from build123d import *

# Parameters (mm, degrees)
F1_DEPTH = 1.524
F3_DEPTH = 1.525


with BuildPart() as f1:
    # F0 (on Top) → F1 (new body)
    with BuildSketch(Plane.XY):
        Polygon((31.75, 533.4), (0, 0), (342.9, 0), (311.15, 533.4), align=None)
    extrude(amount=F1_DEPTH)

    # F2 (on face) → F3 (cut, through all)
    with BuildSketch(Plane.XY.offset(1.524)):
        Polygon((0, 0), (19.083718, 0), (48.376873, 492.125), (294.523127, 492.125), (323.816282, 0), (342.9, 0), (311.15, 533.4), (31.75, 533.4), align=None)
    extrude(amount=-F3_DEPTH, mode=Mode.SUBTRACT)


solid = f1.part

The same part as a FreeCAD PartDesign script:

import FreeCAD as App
import Part
import Sketcher
from FreeCAD import Vector
Q = App.Units.Quantity

doc = App.newDocument("Part")
body = doc.addObject("PartDesign::Body", "Body")

# Sketch on XY plane
sketch1 = body.newObject("Sketcher::SketchObject", "Sketch")
sketch1.AttachmentSupport = (doc.getObject("XY_Plane"), [""])
sketch1.MapMode = "FlatFace"
sketch1.addGeometry(Part.LineSegment(Vector(32, 533, 0), Vector(0, 0, 0)), False)
sketch1.addGeometry(Part.LineSegment(Vector(0, 0, 0), Vector(343, 0, 0)), False)
sketch1.addGeometry(Part.LineSegment(Vector(343, 0, 0), Vector(311, 533, 0)), False)
sketch1.addGeometry(Part.LineSegment(Vector(311, 533, 0), Vector(32, 533, 0)), False)
sketch1.addConstraint(Sketcher.Constraint("Coincident", 0, 2, 1, 1))
sketch1.addConstraint(Sketcher.Constraint("Coincident", 1, 2, 2, 1))
sketch1.addConstraint(Sketcher.Constraint("Coincident", 2, 2, 3, 1))
sketch1.addConstraint(Sketcher.Constraint("Coincident", 3, 2, 0, 1))
sketch1.addConstraint(Sketcher.Constraint("Horizontal", 1))
sketch1.addConstraint(Sketcher.Constraint("Horizontal", 3))
sketch1.addConstraint(Sketcher.Constraint("Coincident", 0, 2, -1, 1))
sketch1.addConstraint(Sketcher.Constraint("Equal", 0, 2))
sketch1.addConstraint(Sketcher.Constraint("DistanceX", 3, 2, 3, 1, Q("11 in")))
sketch1.addConstraint(Sketcher.Constraint("DistanceX", 1, 1, 1, 2, Q("13.5 in")))
sketch1.addConstraint(Sketcher.Constraint("DistanceY", -1, 1, 2, 2, Q("21 in")))
pad1 = body.newObject("PartDesign::Pad", "Pad")
pad1.Profile = sketch1
pad1.Length = Q("0.06 in")

# Sketch on XY plane
sketch2 = body.newObject("Sketcher::SketchObject", "Sketch001")
sketch2.AttachmentSupport = (doc.getObject("XY_Plane"), [""])
sketch2.MapMode = "FlatFace"
sketch2.AttachmentOffset = App.Placement(Vector(0, 0, 0.06 * 25.4), App.Rotation())
sketch2.addGeometry(Part.LineSegment(Vector(0, 0, 0), Vector(19, 0, 0)), False)
sketch2.addGeometry(Part.LineSegment(Vector(19, 0, 0), Vector(48, 492, 0)), False)
sketch2.addGeometry(Part.LineSegment(Vector(48, 492, 0), Vector(295, 492, 0)), False)
sketch2.addGeometry(Part.LineSegment(Vector(295, 492, 0), Vector(324, 0, 0)), False)
sketch2.addGeometry(Part.LineSegment(Vector(324, 0, 0), Vector(343, 0, 0)), False)
sketch2.addGeometry(Part.LineSegment(Vector(343, 0, 0), Vector(311, 533, 0)), False)
sketch2.addGeometry(Part.LineSegment(Vector(311, 533, 0), Vector(32, 533, 0)), False)
sketch2.addGeometry(Part.LineSegment(Vector(32, 533, 0), Vector(0, 0, 0)), False)
sketch2.addConstraint(Sketcher.Constraint("Coincident", 0, 2, 1, 1))
sketch2.addConstraint(Sketcher.Constraint("Coincident", 1, 2, 2, 1))
sketch2.addConstraint(Sketcher.Constraint("Coincident", 2, 2, 3, 1))
sketch2.addConstraint(Sketcher.Constraint("Coincident", 3, 2, 4, 1))
sketch2.addConstraint(Sketcher.Constraint("Coincident", 4, 2, 5, 1))
sketch2.addConstraint(Sketcher.Constraint("Coincident", 5, 2, 6, 1))
sketch2.addConstraint(Sketcher.Constraint("Coincident", 6, 2, 7, 1))
sketch2.addConstraint(Sketcher.Constraint("Coincident", 7, 2, 0, 1))
sketch2.addConstraint(Sketcher.Constraint("Horizontal", 0))
sketch2.addConstraint(Sketcher.Constraint("Horizontal", 2))
sketch2.addConstraint(Sketcher.Constraint("Horizontal", 4))
sketch2.addConstraint(Sketcher.Constraint("Horizontal", 6))
sketch2.addConstraint(Sketcher.Constraint("Coincident", 7, 2, -1, 1))
sketch2.addConstraint(Sketcher.Constraint("PointOnObject", 3, 2, -1))
sketch2.addConstraint(Sketcher.Constraint("Parallel", 3, 5))
sketch2.addConstraint(Sketcher.Constraint("Parallel", 1, 7))
sketch2.addConstraint(Sketcher.Constraint("Equal", 0, 4))
sketch2.addConstraint(Sketcher.Constraint("Equal", 1, 3))
sketch2.addConstraint(Sketcher.Constraint("DistanceX", 6, 2, 6, 1, Q("11 in")))
sketch2.addConstraint(Sketcher.Constraint("DistanceY", -1, 1, 5, 2, Q("21 in")))
sketch2.addConstraint(Sketcher.Constraint("DistanceX", -1, 1, 4, 2, Q("13.5 in")))
sketch2.addConstraint(Sketcher.Constraint("DistanceY", -1, 1, 1, 2, Q("19.375 in")))
sketch2.addConstraint(Sketcher.Constraint("DistanceX", 0, 1, 0, 2, Q("19.083718 mm")))
pocket1 = body.newObject("PartDesign::Pocket", "Pocket")
pocket1.Profile = sketch2
pocket1.Type = "ThroughAll"

doc.recompute()
